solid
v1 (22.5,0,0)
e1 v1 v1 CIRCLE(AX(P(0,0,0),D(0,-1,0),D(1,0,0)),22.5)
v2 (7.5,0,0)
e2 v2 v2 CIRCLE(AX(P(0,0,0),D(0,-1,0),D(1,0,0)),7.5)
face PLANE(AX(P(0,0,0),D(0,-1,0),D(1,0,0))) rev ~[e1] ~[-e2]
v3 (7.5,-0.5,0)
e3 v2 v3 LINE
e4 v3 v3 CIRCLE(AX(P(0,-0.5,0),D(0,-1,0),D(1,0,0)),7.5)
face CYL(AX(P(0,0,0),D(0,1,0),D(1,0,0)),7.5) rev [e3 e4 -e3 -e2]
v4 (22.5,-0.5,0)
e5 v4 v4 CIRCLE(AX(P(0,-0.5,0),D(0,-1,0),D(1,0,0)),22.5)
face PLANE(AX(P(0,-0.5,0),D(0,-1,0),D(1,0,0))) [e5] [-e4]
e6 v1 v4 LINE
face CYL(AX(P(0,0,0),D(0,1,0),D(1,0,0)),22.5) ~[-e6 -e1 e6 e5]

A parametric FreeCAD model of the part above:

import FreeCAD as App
import Part
import Sketcher
from FreeCAD import Vector

doc = App.newDocument("Part")
body = doc.addObject("PartDesign::Body", "Body")

# Sketch on XZ plane
sketch1 = body.newObject("Sketcher::SketchObject", "Sketch")
sketch1.AttachmentSupport = (doc.getObject("XZ_Plane"), [""])
sketch1.MapMode = "FlatFace"
sketch1.addGeometry(Part.Circle(Vector(0, 0, 0), Vector(0, 0, 1), 22), False)
sketch1.addGeometry(Part.Circle(Vector(0, 0, 0), Vector(0, 0, 1), 8), False)
sketch1.addConstraint(Sketcher.Constraint("Coincident", 0, 3, -1, 1))
sketch1.addConstraint(Sketcher.Constraint("Coincident", 1, 3, -1, 1))
sketch1.addConstraint(Sketcher.Constraint("Diameter", 0, 45.0))
sketch1.addConstraint(Sketcher.Constraint("Diameter", 1, 15.0))
pad1 = body.newObject("PartDesign::Pad", "Pad")
pad1.Profile = sketch1
pad1.Length = 0.5

doc.recompute()
